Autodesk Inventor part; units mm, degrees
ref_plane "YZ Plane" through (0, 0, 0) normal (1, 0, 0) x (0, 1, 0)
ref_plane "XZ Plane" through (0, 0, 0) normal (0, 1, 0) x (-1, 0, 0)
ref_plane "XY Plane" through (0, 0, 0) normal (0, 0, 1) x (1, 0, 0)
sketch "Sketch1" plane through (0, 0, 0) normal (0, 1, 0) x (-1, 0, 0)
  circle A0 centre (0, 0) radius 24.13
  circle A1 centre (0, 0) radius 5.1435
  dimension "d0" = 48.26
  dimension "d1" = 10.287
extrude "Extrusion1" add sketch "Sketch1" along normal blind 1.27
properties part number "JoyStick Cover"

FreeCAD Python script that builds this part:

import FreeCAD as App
import Part
import Sketcher

V = App.Vector
Q = App.Units.Quantity

doc = App.newDocument("Part")
body = doc.addObject("PartDesign::Body", "Body")

sketch1 = body.newObject("Sketcher::SketchObject", "Sketch")
sketch1.AttachmentSupport = (doc.getObject("XZ_Plane"), [""])
sketch1.MapMode = "FlatFace"
sketch1.addGeometry([
    Part.Circle(V(0, 0, 0), V(0, 0, 1), 24.13),
    Part.Circle(V(0, 0, 0), V(0, 0, 1), 5.1435),
], False)
sketch1.addConstraint([
    Sketcher.Constraint("Coincident", 0, 3, -1, 1),
    Sketcher.Constraint("Coincident", 1, 3, -1, 1),
    Sketcher.Constraint("Diameter", 0, Q("1.9 in")),
    Sketcher.Constraint("Diameter", 1, Q("0.405 in")),
])
pad1 = body.newObject("PartDesign::Pad", "Pad")
pad1.Profile = sketch1
pad1.Length = Q("0.05 in")
pad1.Reversed = True

doc.recompute()
